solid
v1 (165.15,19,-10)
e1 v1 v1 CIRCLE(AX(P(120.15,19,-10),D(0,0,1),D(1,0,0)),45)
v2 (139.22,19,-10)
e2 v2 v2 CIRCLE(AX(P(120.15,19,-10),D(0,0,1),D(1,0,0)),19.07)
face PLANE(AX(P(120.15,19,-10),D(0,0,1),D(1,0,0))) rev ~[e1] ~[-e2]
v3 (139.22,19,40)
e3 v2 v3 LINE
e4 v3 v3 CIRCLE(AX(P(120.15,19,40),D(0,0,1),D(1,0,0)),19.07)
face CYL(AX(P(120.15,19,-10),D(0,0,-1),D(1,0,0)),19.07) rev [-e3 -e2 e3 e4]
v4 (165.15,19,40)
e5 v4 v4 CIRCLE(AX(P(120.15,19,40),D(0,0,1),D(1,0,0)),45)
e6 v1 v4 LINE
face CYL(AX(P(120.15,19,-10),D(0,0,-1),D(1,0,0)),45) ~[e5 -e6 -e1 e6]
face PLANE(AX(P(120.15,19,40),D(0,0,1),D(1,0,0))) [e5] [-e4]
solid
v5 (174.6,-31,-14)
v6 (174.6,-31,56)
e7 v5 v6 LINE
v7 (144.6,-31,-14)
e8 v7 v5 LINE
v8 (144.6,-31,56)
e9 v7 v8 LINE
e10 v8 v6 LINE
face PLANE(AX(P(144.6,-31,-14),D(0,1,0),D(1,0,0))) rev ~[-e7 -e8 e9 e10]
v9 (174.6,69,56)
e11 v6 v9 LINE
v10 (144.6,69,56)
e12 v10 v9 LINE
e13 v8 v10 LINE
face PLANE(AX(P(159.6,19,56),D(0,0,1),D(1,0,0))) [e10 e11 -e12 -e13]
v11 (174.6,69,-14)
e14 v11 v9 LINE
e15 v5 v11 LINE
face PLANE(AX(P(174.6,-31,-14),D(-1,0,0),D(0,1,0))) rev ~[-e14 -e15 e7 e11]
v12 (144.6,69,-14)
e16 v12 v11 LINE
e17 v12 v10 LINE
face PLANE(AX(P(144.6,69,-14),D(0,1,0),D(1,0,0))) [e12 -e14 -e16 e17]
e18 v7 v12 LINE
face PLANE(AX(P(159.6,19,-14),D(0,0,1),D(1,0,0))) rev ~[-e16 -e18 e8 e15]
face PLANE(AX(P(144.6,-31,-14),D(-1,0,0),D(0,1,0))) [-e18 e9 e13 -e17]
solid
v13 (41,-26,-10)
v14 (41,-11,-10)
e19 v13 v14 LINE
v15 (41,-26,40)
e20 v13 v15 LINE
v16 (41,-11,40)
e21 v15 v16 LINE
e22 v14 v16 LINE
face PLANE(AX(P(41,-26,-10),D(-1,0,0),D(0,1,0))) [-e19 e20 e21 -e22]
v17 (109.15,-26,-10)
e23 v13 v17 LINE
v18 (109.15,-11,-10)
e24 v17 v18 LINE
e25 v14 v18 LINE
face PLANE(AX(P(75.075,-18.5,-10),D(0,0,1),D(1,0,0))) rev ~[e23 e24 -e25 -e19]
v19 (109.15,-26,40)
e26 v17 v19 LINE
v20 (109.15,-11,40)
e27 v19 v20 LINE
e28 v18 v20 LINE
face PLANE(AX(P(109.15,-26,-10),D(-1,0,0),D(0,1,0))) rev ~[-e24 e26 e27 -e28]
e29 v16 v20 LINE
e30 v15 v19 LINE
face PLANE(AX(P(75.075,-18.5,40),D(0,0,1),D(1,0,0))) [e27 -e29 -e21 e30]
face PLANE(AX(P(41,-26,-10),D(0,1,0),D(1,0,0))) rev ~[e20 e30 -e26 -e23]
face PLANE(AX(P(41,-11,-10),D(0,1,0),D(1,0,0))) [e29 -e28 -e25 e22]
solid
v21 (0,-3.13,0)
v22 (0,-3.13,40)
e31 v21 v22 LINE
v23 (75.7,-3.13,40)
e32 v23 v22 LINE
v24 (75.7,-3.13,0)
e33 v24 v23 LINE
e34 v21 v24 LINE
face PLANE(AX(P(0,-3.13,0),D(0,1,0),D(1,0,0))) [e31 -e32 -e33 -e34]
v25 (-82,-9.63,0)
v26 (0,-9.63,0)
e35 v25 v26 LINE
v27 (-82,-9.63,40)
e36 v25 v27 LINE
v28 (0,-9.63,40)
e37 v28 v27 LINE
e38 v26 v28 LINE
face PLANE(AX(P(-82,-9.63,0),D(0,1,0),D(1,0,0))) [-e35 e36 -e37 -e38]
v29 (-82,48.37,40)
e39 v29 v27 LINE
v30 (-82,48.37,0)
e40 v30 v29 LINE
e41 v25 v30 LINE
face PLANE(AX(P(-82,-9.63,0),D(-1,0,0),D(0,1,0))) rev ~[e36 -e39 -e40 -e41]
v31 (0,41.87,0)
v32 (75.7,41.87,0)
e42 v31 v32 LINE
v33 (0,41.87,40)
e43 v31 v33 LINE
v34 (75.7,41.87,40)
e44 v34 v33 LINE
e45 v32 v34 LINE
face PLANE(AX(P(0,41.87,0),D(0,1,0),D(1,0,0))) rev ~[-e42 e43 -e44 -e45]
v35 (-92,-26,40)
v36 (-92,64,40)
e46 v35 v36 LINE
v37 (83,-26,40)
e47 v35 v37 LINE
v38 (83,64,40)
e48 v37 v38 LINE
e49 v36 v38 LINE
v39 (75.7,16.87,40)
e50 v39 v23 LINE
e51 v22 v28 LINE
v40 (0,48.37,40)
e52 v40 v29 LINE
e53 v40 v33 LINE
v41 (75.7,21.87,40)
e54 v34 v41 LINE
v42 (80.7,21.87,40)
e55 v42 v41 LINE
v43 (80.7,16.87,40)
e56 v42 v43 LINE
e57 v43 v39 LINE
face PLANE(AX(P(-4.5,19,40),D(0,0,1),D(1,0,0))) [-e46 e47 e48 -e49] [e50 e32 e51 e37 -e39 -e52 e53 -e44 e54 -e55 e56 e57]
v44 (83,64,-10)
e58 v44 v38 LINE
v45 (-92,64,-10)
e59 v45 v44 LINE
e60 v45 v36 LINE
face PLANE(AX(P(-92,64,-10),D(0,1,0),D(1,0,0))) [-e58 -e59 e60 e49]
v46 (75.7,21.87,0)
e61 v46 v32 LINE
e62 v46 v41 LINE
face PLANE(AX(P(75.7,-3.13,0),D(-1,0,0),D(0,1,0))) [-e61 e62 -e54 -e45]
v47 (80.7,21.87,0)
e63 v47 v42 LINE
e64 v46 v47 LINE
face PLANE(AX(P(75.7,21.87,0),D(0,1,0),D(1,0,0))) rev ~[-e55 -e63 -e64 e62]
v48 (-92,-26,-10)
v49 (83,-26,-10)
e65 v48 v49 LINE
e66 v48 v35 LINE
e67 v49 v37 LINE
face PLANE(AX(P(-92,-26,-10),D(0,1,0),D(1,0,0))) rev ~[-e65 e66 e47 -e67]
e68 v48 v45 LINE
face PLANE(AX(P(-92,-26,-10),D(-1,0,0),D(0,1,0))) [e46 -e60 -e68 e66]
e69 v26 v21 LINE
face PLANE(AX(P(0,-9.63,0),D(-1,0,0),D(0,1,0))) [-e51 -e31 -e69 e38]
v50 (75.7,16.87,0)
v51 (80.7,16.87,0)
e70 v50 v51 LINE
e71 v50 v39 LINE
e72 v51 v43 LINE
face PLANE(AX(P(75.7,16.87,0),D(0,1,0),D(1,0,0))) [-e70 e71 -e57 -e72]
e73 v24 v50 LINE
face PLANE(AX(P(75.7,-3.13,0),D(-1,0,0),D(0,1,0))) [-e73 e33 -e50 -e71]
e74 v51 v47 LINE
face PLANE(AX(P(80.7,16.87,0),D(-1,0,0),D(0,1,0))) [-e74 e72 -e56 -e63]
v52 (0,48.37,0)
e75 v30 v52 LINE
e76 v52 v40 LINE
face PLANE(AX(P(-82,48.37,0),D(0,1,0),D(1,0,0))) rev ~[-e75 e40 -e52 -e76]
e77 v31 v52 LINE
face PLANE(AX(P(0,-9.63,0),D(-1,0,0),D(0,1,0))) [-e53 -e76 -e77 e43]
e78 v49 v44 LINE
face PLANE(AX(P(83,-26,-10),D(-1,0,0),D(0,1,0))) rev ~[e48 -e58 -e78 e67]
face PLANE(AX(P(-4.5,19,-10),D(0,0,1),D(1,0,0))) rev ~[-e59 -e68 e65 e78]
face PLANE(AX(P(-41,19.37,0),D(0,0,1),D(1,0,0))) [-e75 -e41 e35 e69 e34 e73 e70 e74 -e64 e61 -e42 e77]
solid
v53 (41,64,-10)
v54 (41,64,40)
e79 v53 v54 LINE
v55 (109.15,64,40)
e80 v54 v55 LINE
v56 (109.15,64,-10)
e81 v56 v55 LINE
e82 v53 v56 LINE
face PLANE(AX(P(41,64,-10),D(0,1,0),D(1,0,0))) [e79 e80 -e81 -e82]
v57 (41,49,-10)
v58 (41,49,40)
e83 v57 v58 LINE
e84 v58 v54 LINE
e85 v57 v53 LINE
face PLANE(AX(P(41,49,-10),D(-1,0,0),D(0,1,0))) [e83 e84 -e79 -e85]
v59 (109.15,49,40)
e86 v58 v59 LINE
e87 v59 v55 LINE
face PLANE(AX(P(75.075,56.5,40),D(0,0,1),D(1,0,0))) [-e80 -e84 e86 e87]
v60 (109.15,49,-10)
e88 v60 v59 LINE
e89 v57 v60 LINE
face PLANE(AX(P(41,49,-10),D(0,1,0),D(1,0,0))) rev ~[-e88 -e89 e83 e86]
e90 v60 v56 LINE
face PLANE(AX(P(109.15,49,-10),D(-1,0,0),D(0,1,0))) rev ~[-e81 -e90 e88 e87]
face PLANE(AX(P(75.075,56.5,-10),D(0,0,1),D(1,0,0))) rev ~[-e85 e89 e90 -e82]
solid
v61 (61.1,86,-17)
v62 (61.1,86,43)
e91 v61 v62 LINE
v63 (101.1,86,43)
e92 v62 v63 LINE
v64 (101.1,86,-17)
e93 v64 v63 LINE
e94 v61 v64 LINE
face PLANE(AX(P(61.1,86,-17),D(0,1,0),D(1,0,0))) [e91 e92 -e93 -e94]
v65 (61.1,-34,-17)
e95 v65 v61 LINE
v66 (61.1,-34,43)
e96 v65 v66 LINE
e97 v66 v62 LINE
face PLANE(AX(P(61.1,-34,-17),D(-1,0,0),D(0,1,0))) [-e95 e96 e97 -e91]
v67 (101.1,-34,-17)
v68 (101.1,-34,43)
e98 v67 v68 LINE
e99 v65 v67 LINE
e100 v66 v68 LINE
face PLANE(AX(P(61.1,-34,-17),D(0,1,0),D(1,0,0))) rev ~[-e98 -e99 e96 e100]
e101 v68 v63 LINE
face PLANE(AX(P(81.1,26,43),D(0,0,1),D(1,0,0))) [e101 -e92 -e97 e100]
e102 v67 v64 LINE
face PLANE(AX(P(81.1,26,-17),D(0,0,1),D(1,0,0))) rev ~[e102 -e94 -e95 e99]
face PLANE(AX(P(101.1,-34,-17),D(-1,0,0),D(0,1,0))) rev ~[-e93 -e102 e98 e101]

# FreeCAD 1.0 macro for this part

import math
import FreeCAD as App
import Part
import Sketcher
Q = App.Units.Quantity


def add_polygon(sketch, points):
    """Adds a closed chain of lines whose ends are joined by coincident constraints."""
    first, n = sketch.GeometryCount, len(points)
    for a, b in zip(points, points[1:] + points[:1]):
        sketch.addGeometry(Part.LineSegment(App.Vector(*a, 0), App.Vector(*b, 0)), False)
    for i in range(n):
        sketch.addConstraint(Sketcher.Constraint("Coincident", first + i, 2, first + (i + 1) % n, 1))

doc = App.newDocument("Part")
body = doc.addObject("PartDesign::Body", "Body")

# Sketch on XY plane
sketch1 = body.newObject("Sketcher::SketchObject", "Sketch")
sketch1.AttachmentSupport = (doc.getObject("XY_Plane"), [""])
sketch1.MapMode = "FlatFace"
sketch1.AttachmentOffset = App.Placement(App.Vector(0, 0, -10), App.Rotation())
add_polygon(sketch1, [(41, -11), (41, -26), (109, -26), (109, -11)])  # lines 0-3
sketch1.addConstraint(Sketcher.Constraint("Vertical", 0))
sketch1.addConstraint(Sketcher.Constraint("Horizontal", 1))
sketch1.addConstraint(Sketcher.Constraint("Vertical", 2))
sketch1.addConstraint(Sketcher.Constraint("Horizontal", 3))
sketch1.addConstraint(Sketcher.Constraint("DistanceY", 0, 2, 0, 1, Q("15 mm")))
sketch1.addConstraint(Sketcher.Constraint("DistanceX", -1, 1, 0, 2, Q("41 mm")))
sketch1.addConstraint(Sketcher.Constraint("DistanceY", 0, 2, -1, 1, Q("26 mm")))
sketch1.addConstraint(Sketcher.Constraint("DistanceX", 1, 1, 1, 2, Q("68.15 mm")))
pad1 = body.newObject("PartDesign::Pad", "Pad")
pad1.Profile = sketch1
pad1.Length = 50
body2 = doc.addObject("PartDesign::Body", "Body001")

# Sketch on XY plane
sketch2 = body2.newObject("Sketcher::SketchObject", "Sketch001")
sketch2.AttachmentSupport = (doc.getObject("XY_Plane001"), [""])
sketch2.MapMode = "FlatFace"
sketch2.AttachmentOffset = App.Placement(App.Vector(0, 0, -10), App.Rotation())
add_polygon(sketch2, [(41, 64), (41, 49), (109, 49), (109, 64)])  # lines 0-3
sketch2.addConstraint(Sketcher.Constraint("Vertical", 0))
sketch2.addConstraint(Sketcher.Constraint("Horizontal", 1))
sketch2.addConstraint(Sketcher.Constraint("Vertical", 2))
sketch2.addConstraint(Sketcher.Constraint("Horizontal", 3))
sketch2.addConstraint(Sketcher.Constraint("DistanceY", 0, 2, 0, 1, Q("15 mm")))
sketch2.addConstraint(Sketcher.Constraint("DistanceX", -1, 1, 0, 2, Q("41 mm")))
sketch2.addConstraint(Sketcher.Constraint("DistanceY", -1, 1, 0, 2, Q("49 mm")))
sketch2.addConstraint(Sketcher.Constraint("DistanceX", 1, 1, 1, 2, Q("68.15 mm")))
pad2 = body2.newObject("PartDesign::Pad", "Pad001")
pad2.Profile = sketch2
pad2.Length = 50
body3 = doc.addObject("PartDesign::Body", "Body002")

# Sketch on XY plane
sketch3 = body3.newObject("Sketcher::SketchObject", "Sketch002")
sketch3.AttachmentSupport = (doc.getObject("XY_Plane002"), [""])
sketch3.MapMode = "FlatFace"
sketch3.AttachmentOffset = App.Placement(App.Vector(0, 0, -17), App.Rotation())
add_polygon(sketch3, [(61, 86), (61, -34), (101, -34), (101, 86)])  # lines 0-3
sketch3.addConstraint(Sketcher.Constraint("Vertical", 0))
sketch3.addConstraint(Sketcher.Constraint("Horizontal", 1))
sketch3.addConstraint(Sketcher.Constraint("Vertical", 2))
sketch3.addConstraint(Sketcher.Constraint("Horizontal", 3))
sketch3.addConstraint(Sketcher.Constraint("DistanceX", 1, 1, 1, 2, Q("40 mm")))
sketch3.addConstraint(Sketcher.Constraint("DistanceY", 0, 2, 0, 1, Q("120 mm")))
sketch3.addConstraint(Sketcher.Constraint("DistanceY", 0, 2, -1, 1, Q("34 mm")))
sketch3.addConstraint(Sketcher.Constraint("DistanceX", -1, 1, 0, 2, Q("61.1 mm")))
pad3 = body3.newObject("PartDesign::Pad", "Pad002")
pad3.Profile = sketch3
pad3.Length = 60
body4 = doc.addObject("PartDesign::Body", "Body003")

# Sketch on XY plane
sketch4 = body4.newObject("Sketcher::SketchObject", "Sketch003")
sketch4.AttachmentSupport = (doc.getObject("XY_Plane003"), [""])
sketch4.MapMode = "FlatFace"
sketch4.AttachmentOffset = App.Placement(App.Vector(0, 0, -14), App.Rotation())
add_polygon(sketch4, [(145, 69), (145, -31), (175, -31), (175, 69)])  # lines 0-3
sketch4.addConstraint(Sketcher.Constraint("Vertical", 0))
sketch4.addConstraint(Sketcher.Constraint("Horizontal", 1))
sketch4.addConstraint(Sketcher.Constraint("Vertical", 2))
sketch4.addConstraint(Sketcher.Constraint("Horizontal", 3))
sketch4.addConstraint(Sketcher.Constraint("DistanceX", 1, 1, 1, 2, Q("30 mm")))
sketch4.addConstraint(Sketcher.Constraint("DistanceY", 0, 2, 0, 1, Q("100 mm")))
sketch4.addConstraint(Sketcher.Constraint("DistanceY", 0, 2, -1, 1, Q("31 mm")))
sketch4.addConstraint(Sketcher.Constraint("DistanceX", -1, 1, 0, 2, Q("144.6 mm")))
pad4 = body4.newObject("PartDesign::Pad", "Pad003")
pad4.Profile = sketch4
pad4.Length = 70
body5 = doc.addObject("PartDesign::Body", "Body004")

# Sketch on XY plane
sketch5 = body5.newObject("Sketcher::SketchObject", "Sketch004")
sketch5.AttachmentSupport = (doc.getObject("XY_Plane004"), [""])
sketch5.MapMode = "FlatFace"
add_polygon(sketch5, [(-82, 48), (-82, -10), (0, -10), (0, 48)])  # lines 0-3
sketch5.addConstraint(Sketcher.Constraint("Vertical", 0))
sketch5.addConstraint(Sketcher.Constraint("Horizontal", 1))
sketch5.addConstraint(Sketcher.Constraint("Vertical", 2))
sketch5.addConstraint(Sketcher.Constraint("Horizontal", 3))
sketch5.addConstraint(Sketcher.Constraint("PointOnObject", 1, 2, -2))
sketch5.addConstraint(Sketcher.Constraint("DistanceX", 1, 1, 1, 2, Q("82 mm")))
sketch5.addConstraint(Sketcher.Constraint("DistanceY", 0, 2, 0, 1, Q("58 mm")))
sketch5.addConstraint(Sketcher.Constraint("DistanceY", 0, 2, -1, 1, Q("9.63 mm")))
pad5 = body5.newObject("PartDesign::Pad", "Pad004")
pad5.Profile = sketch5
pad5.Length = 44.4
body6 = doc.addObject("PartDesign::Body", "Body005")

# Sketch on XY plane
sketch6 = body6.newObject("Sketcher::SketchObject", "Sketch005")
sketch6.AttachmentSupport = (doc.getObject("XY_Plane005"), [""])
sketch6.MapMode = "FlatFace"
add_polygon(sketch6, [(76, 22), (76, 17), (81, 17), (81, 22)])  # lines 0-3
sketch6.addConstraint(Sketcher.Constraint("Vertical", 0))
sketch6.addConstraint(Sketcher.Constraint("Horizontal", 1))
sketch6.addConstraint(Sketcher.Constraint("Vertical", 2))
sketch6.addConstraint(Sketcher.Constraint("Horizontal", 3))
sketch6.addConstraint(Sketcher.Constraint("Equal", 3, 0))
sketch6.addConstraint(Sketcher.Constraint("DistanceX", 1, 1, 1, 2, Q("5 mm")))
sketch6.addConstraint(Sketcher.Constraint("DistanceX", -1, 1, 0, 2, Q("75.7 mm")))
sketch6.addConstraint(Sketcher.Constraint("DistanceY", -1, 1, 0, 2, Q("16.87 mm")))
pad6 = body6.newObject("PartDesign::Pad", "Pad005")
pad6.Profile = sketch6
pad6.Length = 44.4
body7 = doc.addObject("PartDesign::Body", "Body006")

# Sketch on XY plane
sketch7 = body7.newObject("Sketcher::SketchObject", "Sketch006")
sketch7.AttachmentSupport = (doc.getObject("XY_Plane006"), [""])
sketch7.MapMode = "FlatFace"
sketch7.AttachmentOffset = App.Placement(App.Vector(0, 0, 49.4), App.Rotation())
sketch7.addGeometry(Part.Circle(App.Vector(-59, 20, 0), App.Vector(0, 0, 1), 5), False)
sketch7.addConstraint(Sketcher.Constraint("Diameter", 0, Q("10 mm")))
sketch7.addConstraint(Sketcher.Constraint("DistanceX", 0, 3, -1, 1, Q("58.7 mm")))
sketch7.addConstraint(Sketcher.Constraint("DistanceY", -1, 1, 0, 3, Q("20.37 mm")))
pad7 = body7.newObject("PartDesign::Pad", "Pad006")
pad7.Profile = sketch7
pad7.Length = 4
body8 = doc.addObject("PartDesign::Body", "Body007")

# Sketch on XY plane
sketch8 = body8.newObject("Sketcher::SketchObject", "Sketch007")
sketch8.AttachmentSupport = (doc.getObject("XY_Plane007"), [""])
sketch8.MapMode = "FlatFace"
sketch8.AttachmentOffset = App.Placement(App.Vector(0, 0, 53.4), App.Rotation())
sketch8.addGeometry(Part.LineSegment(App.Vector(-63, 23, 0), App.Vector(-63, 17, 0)), False)
sketch8.addGeometry(Part.ArcOfCircle(Part.Circle(App.Vector(-59, 20, 0), App.Vector(0, 0, 1), 5), math.radians(-143), math.radians(143)), False)
sketch8.addConstraint(Sketcher.Constraint("Coincident", 0, 1, 1, 2))
sketch8.addConstraint(Sketcher.Constraint("Coincident", 1, 1, 0, 2))
sketch8.addConstraint(Sketcher.Constraint("Vertical", 0))
sketch8.addConstraint(Sketcher.Constraint("Radius", 1, Q("5 mm")))
sketch8.addConstraint(Sketcher.Constraint("DistanceY", 0, 2, 0, 1, Q("6 mm")))
sketch8.addConstraint(Sketcher.Constraint("DistanceX", 1, 3, -1, 1, Q("58.7 mm")))
sketch8.addConstraint(Sketcher.Constraint("DistanceY", -1, 1, 1, 3, Q("20.37 mm")))
pad8 = body8.newObject("PartDesign::Pad", "Pad007")
pad8.Profile = sketch8
pad8.Length = 15
body9 = doc.addObject("PartDesign::Body", "Body008")

# Sketch on XY plane
sketch9 = body9.newObject("Sketcher::SketchObject", "Sketch008")
sketch9.AttachmentSupport = (doc.getObject("XY_Plane008"), [""])
sketch9.MapMode = "FlatFace"
sketch9.AttachmentOffset = App.Placement(App.Vector(0, 0, 44.4), App.Rotation())
sketch9.addGeometry(Part.Circle(App.Vector(-59, 20, 0), App.Vector(0, 0, 1), 12), False)
sketch9.addConstraint(Sketcher.Constraint("Diameter", 0, Q("24.6 mm")))
sketch9.addConstraint(Sketcher.Constraint("DistanceX", 0, 3, -1, 1, Q("58.7 mm")))
sketch9.addConstraint(Sketcher.Constraint("DistanceY", -1, 1, 0, 3, Q("20.37 mm")))
pad9 = body9.newObject("PartDesign::Pad", "Pad008")
pad9.Profile = sketch9
pad9.Length = 5
doc.recompute()

boolean = body9.newObject("PartDesign::Boolean", "Boolean")
boolean.Type = "Fuse"
boolean.addObjects([body7])
doc.recompute()

boolean2 = body9.newObject("PartDesign::Boolean", "Boolean001")
boolean2.Type = "Fuse"
boolean2.addObjects([body8])
body10 = doc.addObject("PartDesign::Body", "Body009")

# Sketch on XY plane
sketch10 = body10.newObject("Sketcher::SketchObject", "Sketch009")
sketch10.AttachmentSupport = (doc.getObject("XY_Plane009"), [""])
sketch10.MapMode = "FlatFace"
add_polygon(sketch10, [(0, 42), (0, -3), (76, -3), (76, 42)])  # lines 0-3
sketch10.addConstraint(Sketcher.Constraint("Vertical", 0))
sketch10.addConstraint(Sketcher.Constraint("Horizontal", 1))
sketch10.addConstraint(Sketcher.Constraint("Vertical", 2))
sketch10.addConstraint(Sketcher.Constraint("Horizontal", 3))
sketch10.addConstraint(Sketcher.Constraint("PointOnObject", 0, 2, -2))
sketch10.addConstraint(Sketcher.Constraint("DistanceY", 0, 2, 0, 1, Q("45 mm")))
sketch10.addConstraint(Sketcher.Constraint("DistanceX", 1, 1, 1, 2, Q("75.7 mm")))
sketch10.addConstraint(Sketcher.Constraint("DistanceY", 0, 2, -1, 1, Q("3.13 mm")))
pad10 = body10.newObject("PartDesign::Pad", "Pad009")
pad10.Profile = sketch10
pad10.Length = 44.4
doc.recompute()

boolean3 = body10.newObject("PartDesign::Boolean", "Boolean002")
boolean3.Type = "Fuse"
boolean3.addObjects([body5])
doc.recompute()

boolean4 = body10.newObject("PartDesign::Boolean", "Boolean003")
boolean4.Type = "Fuse"
boolean4.addObjects([body6])
doc.recompute()

boolean5 = body10.newObject("PartDesign::Boolean", "Boolean004")
boolean5.Type = "Fuse"
boolean5.addObjects([body9])
body11 = doc.addObject("PartDesign::Body", "Body010")

# Sketch on XY plane
sketch11 = body11.newObject("Sketcher::SketchObject", "Sketch010")
sketch11.AttachmentSupport = (doc.getObject("XY_Plane010"), [""])
sketch11.MapMode = "FlatFace"
sketch11.AttachmentOffset = App.Placement(App.Vector(0, 0, -10), App.Rotation())
add_polygon(sketch11, [(-92, 64), (-92, -26), (83, -26), (83, 64)])  # lines 0-3
sketch11.addConstraint(Sketcher.Constraint("Vertical", 0))
sketch11.addConstraint(Sketcher.Constraint("Horizontal", 1))
sketch11.addConstraint(Sketcher.Constraint("Vertical", 2))
sketch11.addConstraint(Sketcher.Constraint("Horizontal", 3))
sketch11.addConstraint(Sketcher.Constraint("DistanceX", 1, 1, 1, 2, Q("175 mm")))
sketch11.addConstraint(Sketcher.Constraint("DistanceY", 0, 2, 0, 1, Q("90 mm")))
sketch11.addConstraint(Sketcher.Constraint("DistanceX", 0, 2, -1, 1, Q("92 mm")))
sketch11.addConstraint(Sketcher.Constraint("DistanceY", 0, 2, -1, 1, Q("26 mm")))
pad11 = body11.newObject("PartDesign::Pad", "Pad010")
pad11.Profile = sketch11
pad11.Length = 50
doc.recompute()

boolean6 = body11.newObject("PartDesign::Boolean", "Boolean005")
boolean6.Type = "Cut"
boolean6.addObjects([body10])
body12 = doc.addObject("PartDesign::Body", "Body011")

# Sketch on XY plane
sketch12 = body12.newObject("Sketcher::SketchObject", "Sketch011")
sketch12.AttachmentSupport = (doc.getObject("XY_Plane011"), [""])
sketch12.MapMode = "FlatFace"
sketch12.AttachmentOffset = App.Placement(App.Vector(0, 0, -10), App.Rotation())
sketch12.addGeometry(Part.Circle(App.Vector(120, 19, 0), App.Vector(0, 0, 1), 45), False)
sketch12.addGeometry(Part.Circle(App.Vector(120, 19, 0), App.Vector(0, 0, 1), 19), False)
sketch12.addConstraint(Sketcher.Constraint("Coincident", 1, 3, 0, 3))
sketch12.addConstraint(Sketcher.Constraint("Diameter", 0, Q("90 mm")))
sketch12.addConstraint(Sketcher.Constraint("Diameter", 1, Q("38.14 mm")))
sketch12.addConstraint(Sketcher.Constraint("DistanceY", -1, 1, 0, 3, Q("19 mm")))
sketch12.addConstraint(Sketcher.Constraint("DistanceX", -1, 1, 0, 3, Q("120.15 mm")))
pad12 = body12.newObject("PartDesign::Pad", "Pad011")
pad12.Profile = sketch12
pad12.Length = 50

doc.recompute()
